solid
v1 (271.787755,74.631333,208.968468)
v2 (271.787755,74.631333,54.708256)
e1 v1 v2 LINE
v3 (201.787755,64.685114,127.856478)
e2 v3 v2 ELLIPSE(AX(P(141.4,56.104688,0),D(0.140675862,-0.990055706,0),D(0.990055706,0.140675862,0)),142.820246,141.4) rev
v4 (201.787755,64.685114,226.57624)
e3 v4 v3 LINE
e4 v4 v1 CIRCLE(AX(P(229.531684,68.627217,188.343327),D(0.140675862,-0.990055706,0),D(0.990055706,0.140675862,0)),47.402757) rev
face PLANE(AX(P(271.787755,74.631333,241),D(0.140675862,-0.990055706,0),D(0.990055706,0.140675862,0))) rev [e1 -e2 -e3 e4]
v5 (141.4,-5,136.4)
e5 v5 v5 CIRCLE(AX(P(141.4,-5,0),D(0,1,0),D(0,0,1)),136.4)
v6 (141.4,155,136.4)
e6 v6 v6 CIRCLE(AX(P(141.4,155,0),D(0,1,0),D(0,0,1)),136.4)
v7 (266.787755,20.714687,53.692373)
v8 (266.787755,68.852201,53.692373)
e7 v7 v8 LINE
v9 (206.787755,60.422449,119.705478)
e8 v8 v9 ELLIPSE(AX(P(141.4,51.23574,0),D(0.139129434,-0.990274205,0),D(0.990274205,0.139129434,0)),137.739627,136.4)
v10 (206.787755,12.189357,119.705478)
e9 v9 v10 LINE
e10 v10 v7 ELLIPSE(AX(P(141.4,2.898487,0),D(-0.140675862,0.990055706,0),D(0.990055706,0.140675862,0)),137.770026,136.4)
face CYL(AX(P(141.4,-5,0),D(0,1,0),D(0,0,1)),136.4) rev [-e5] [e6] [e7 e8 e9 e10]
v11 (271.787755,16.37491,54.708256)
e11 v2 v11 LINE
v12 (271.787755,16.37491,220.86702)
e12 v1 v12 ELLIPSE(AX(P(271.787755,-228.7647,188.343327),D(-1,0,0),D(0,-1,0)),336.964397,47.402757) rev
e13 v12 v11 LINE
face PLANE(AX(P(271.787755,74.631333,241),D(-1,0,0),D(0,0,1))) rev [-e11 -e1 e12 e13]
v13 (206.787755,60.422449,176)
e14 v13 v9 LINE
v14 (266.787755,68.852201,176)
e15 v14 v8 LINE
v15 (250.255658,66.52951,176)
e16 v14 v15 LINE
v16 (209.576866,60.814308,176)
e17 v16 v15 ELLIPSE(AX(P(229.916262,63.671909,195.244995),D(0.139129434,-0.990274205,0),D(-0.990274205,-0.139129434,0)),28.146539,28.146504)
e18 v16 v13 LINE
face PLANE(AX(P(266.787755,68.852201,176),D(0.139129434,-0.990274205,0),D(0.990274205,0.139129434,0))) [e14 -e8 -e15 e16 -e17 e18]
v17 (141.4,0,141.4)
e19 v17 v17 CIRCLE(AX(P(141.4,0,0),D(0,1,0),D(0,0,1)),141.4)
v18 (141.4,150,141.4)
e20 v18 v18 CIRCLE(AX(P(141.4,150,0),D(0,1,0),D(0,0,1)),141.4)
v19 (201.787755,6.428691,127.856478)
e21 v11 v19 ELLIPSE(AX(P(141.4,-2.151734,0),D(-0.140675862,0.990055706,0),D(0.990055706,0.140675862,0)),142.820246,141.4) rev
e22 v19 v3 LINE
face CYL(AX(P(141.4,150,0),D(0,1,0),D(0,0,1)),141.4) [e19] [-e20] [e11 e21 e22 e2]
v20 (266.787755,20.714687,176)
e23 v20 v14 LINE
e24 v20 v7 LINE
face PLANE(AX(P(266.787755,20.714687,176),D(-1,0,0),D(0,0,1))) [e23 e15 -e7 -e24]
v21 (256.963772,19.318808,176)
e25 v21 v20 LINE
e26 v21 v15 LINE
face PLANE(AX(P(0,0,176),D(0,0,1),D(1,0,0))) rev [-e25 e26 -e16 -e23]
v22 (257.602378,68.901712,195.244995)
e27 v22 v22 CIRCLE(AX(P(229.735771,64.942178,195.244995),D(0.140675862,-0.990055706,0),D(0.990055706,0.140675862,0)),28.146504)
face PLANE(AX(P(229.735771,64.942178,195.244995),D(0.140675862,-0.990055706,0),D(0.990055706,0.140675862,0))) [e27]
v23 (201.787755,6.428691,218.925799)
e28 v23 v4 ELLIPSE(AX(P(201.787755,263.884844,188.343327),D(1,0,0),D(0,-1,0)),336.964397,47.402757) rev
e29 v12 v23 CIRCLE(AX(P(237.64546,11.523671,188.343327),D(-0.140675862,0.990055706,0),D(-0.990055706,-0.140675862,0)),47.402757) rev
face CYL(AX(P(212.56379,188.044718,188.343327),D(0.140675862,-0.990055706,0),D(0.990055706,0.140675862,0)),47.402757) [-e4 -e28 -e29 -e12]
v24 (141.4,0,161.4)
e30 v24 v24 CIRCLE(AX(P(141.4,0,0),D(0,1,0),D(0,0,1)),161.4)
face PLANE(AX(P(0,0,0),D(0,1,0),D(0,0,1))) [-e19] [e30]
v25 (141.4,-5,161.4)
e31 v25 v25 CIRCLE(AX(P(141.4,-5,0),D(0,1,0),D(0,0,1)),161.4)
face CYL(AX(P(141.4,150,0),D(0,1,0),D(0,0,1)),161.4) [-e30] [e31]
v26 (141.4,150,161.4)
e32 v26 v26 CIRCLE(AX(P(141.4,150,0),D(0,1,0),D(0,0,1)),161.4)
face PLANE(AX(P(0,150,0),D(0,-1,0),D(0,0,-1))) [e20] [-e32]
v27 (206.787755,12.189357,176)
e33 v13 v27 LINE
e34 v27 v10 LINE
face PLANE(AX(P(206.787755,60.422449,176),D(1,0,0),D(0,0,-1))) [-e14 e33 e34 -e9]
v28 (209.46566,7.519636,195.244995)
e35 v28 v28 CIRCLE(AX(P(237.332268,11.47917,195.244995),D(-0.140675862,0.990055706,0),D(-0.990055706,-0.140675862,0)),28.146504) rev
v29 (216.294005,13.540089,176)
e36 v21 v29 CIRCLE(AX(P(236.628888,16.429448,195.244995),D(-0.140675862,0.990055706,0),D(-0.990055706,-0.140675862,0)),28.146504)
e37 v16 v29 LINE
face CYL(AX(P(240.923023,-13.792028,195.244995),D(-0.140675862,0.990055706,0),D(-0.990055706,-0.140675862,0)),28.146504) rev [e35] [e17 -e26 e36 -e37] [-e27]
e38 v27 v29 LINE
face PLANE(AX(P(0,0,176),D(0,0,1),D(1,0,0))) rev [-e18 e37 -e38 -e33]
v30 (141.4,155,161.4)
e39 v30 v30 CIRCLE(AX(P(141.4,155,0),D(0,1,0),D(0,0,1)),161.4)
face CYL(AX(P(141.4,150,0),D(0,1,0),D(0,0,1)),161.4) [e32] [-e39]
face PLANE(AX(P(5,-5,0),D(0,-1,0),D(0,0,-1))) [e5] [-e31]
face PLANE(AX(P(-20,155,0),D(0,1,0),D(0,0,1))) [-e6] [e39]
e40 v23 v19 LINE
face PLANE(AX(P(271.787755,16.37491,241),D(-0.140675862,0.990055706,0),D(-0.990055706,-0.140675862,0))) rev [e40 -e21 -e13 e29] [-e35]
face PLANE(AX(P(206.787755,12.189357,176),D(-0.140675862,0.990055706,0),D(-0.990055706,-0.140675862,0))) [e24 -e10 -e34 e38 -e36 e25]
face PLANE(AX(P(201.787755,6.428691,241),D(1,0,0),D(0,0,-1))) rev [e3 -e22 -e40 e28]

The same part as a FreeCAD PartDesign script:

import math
import FreeCAD as App
import Part
import Sketcher
from FreeCAD import Vector

doc = App.newDocument("Part")
body = doc.addObject("PartDesign::Body", "Body")

sketch1 = doc.addObject("Sketcher::SketchObject", "Sketch")
body.addObject(sketch1)
sketch1.AttachmentSupport = (doc.XY_Plane, [""])
sketch1.MapMode = "FlatFace"
sketch1.addGeometry([
    Part.LineSegment(Vector(0, 0, 0), Vector(-20, 0, 0)),
    Part.LineSegment(Vector(-20, 0, 0), Vector(-20, -5, 0)),
    Part.LineSegment(Vector(-20, -5, 0), Vector(141, -5, 0)),
    Part.LineSegment(Vector(141, -5, 0), Vector(141, 155, 0)),
    Part.LineSegment(Vector(141, 155, 0), Vector(-20, 155, 0)),
    Part.LineSegment(Vector(-20, 155, 0), Vector(-20, 150, 0)),
    Part.LineSegment(Vector(-20, 150, 0), Vector(0, 150, 0)),
    Part.LineSegment(Vector(0, 150, 0), Vector(0, 0, 0)),
], False)
sketch1.addGeometry(Part.LineSegment(Vector(141, 155, 0), Vector(141, -5, 0)), True)
sketch1.addConstraint([
    Sketcher.Constraint("Coincident", 0, 2, 1, 1),
    Sketcher.Constraint("Coincident", 1, 2, 2, 1),
    Sketcher.Constraint("Coincident", 2, 2, 3, 1),
    Sketcher.Constraint("Coincident", 3, 2, 4, 1),
    Sketcher.Constraint("Coincident", 4, 2, 5, 1),
    Sketcher.Constraint("Coincident", 5, 2, 6, 1),
    Sketcher.Constraint("Coincident", 6, 2, 7, 1),
    Sketcher.Constraint("Coincident", 7, 2, 0, 1),
    Sketcher.Constraint("Horizontal", 0),
    Sketcher.Constraint("Vertical", 1),
    Sketcher.Constraint("Horizontal", 2),
    Sketcher.Constraint("Vertical", 3),
    Sketcher.Constraint("Horizontal", 4),
    Sketcher.Constraint("Vertical", 5),
    Sketcher.Constraint("Horizontal", 6),
    Sketcher.Constraint("Vertical", 7),
    Sketcher.Constraint("Vertical", 8),
    Sketcher.Constraint("Coincident", 7, 2, -1, 1),
    Sketcher.Constraint("Coincident", 8, 1, 3, 2),
    Sketcher.Constraint("Horizontal", 1, 2, 8, 2),
    Sketcher.Constraint("Vertical", 1, 2, 4, 2),
    Sketcher.Constraint("Equal", 1, 5),
    Sketcher.Constraint("DistanceX", 0, 2, 0, 1, 20.0),
    Sketcher.Constraint("DistanceY", 1, 2, 1, 1, 5.0),
    Sketcher.Constraint("DistanceY", 3, 1, 3, 2, 160.0),
    Sketcher.Constraint("DistanceX", 2, 1, 2, 2, 161.4),
])
revolution = doc.addObject("PartDesign::Revolution", "Revolution")
body.addObject(revolution)
revolution.Profile = sketch1
revolution.ReferenceAxis = (sketch1, ["Axis0"])
revolution.Angle = 360

sketch2 = doc.addObject("Sketcher::SketchObject", "Sketch001")
body.addObject(sketch2)
sketch2.AttachmentSupport = (doc.XY_Plane, [""])
sketch2.MapMode = "FlatFace"
sketch2.AttachmentOffset = App.Placement(Vector(0, 0, 140), App.Rotation())
sketch2.addGeometry([
    Part.LineSegment(Vector(272, 75, 0), Vector(202, 65, 0)),
    Part.LineSegment(Vector(202, 65, 0), Vector(202, 6, 0)),
    Part.LineSegment(Vector(202, 6, 0), Vector(272, 16, 0)),
    Part.LineSegment(Vector(272, 16, 0), Vector(272, 75, 0)),
], False)
sketch2.addConstraint([
    Sketcher.Constraint("Coincident", 0, 2, 1, 1),
    Sketcher.Constraint("Coincident", 1, 2, 2, 1),
    Sketcher.Constraint("Coincident", 2, 2, 3, 1),
    Sketcher.Constraint("Coincident", 3, 2, 0, 1),
    Sketcher.Constraint("Vertical", 1),
    Sketcher.Constraint("Vertical", 3),
    Sketcher.Constraint("Parallel", 0, 2),
    Sketcher.Constraint("DistanceX", 1, 2, 2, 2, 70.0),
    Sketcher.Constraint("DistanceY", 1, 2, 1, 1, 58.256423),
    Sketcher.Constraint("DistanceY", -1, 1, 1, 2, 6.428691),
    Sketcher.Constraint("DistanceY", -1, 1, 2, 2, 16.37491),
    Sketcher.Constraint("DistanceX", -1, 1, 0, 2, 201.787755),
])
pad1 = doc.addObject("PartDesign::Pad", "Pad")
body.addObject(pad1)
pad1.Profile = sketch2
pad1.Length = 202
pad1.Midplane = True

sketch3 = doc.addObject("Sketcher::SketchObject", "Sketch002")
body.addObject(sketch3)
sketch3.Placement = App.Placement(Vector(4.504709, -31.703468, 0), App.Rotation(Vector(-0.990055706, -0.140675862, 0), Vector(0, 0, -0.999999999), Vector(0.140675862, -0.990055706, 0), "ZXY"))
sketch3.addGeometry([
    Part.LineSegment(Vector(-283, -199, 0), Vector(-293, -244, 0)),
    Part.LineSegment(Vector(-293, -244, 0), Vector(-247, -274, 0)),
    Part.LineSegment(Vector(-247, -274, 0), Vector(-191, -274, 0)),
    Part.LineSegment(Vector(-191, -274, 0), Vector(-191, -199, 0)),
    Part.ArcOfCircle(Part.Circle(Vector(-237, -188, 0), Vector(0, 0, 1), 47), math.radians(-167), math.radians(-13)),
], False)
sketch3.addConstraint([
    Sketcher.Constraint("Coincident", 0, 2, 1, 1),
    Sketcher.Constraint("Coincident", 1, 2, 2, 1),
    Sketcher.Constraint("Coincident", 2, 2, 3, 1),
    Sketcher.Constraint("Coincident", 3, 2, 4, 2),
    Sketcher.Constraint("Coincident", 4, 1, 0, 1),
    Sketcher.Constraint("Horizontal", 2),
    Sketcher.Constraint("Vertical", 3),
    Sketcher.Constraint("Horizontal", 3, 2, 4, 1),
    Sketcher.Constraint("Radius", 4, 47.402757),
    Sketcher.Constraint("DistanceY", 3, 1, 3, 2, 75.05933),
    Sketcher.Constraint("Distance", 0, 45.552761),
    Sketcher.Constraint("DistanceX", 2, 1, 2, 2, 55.986613),
    Sketcher.Constraint("DistanceY", 0, 2, -1, 1, 243.549272),
    Sketcher.Constraint("DistanceX", 4, 1, -1, 1, 283.096669),
    Sketcher.Constraint("DistanceX", 0, 2, 4, 3, 55.621111),
    Sketcher.Constraint("DistanceX", 0, 2, 1, 2, 45.827821),
])
pocket1 = doc.addObject("PartDesign::Pocket", "Pocket")
body.addObject(pocket1)
pocket1.Profile = sketch3
pocket1.Type = "ThroughAll"
pocket1.Midplane = True

sketch4 = doc.addObject("Sketcher::SketchObject", "Sketch003")
body.addObject(sketch4)
sketch4.Placement = App.Placement(Vector(4.504709, -31.703469, 0), App.Rotation(Vector(-0.990055706, -0.140675862, 0), Vector(0, 0, -0.999999999), Vector(0.140675862, -0.990055706, 0), "ZXY"))
sketch4.addGeometry(Part.Circle(Vector(-237, -195, 0), Vector(0, 0, 1), 28), False)
sketch4.addConstraint([
    Sketcher.Constraint("Diameter", 0, 56.293008),
    Sketcher.Constraint("DistanceX", 0, 3, -1, 1, 236.587008),
    Sketcher.Constraint("DistanceY", 0, 3, -1, 1, 195.244994),
])
pocket2 = doc.addObject("PartDesign::Pocket", "Pocket001")
body.addObject(pocket2)
pocket2.Profile = sketch4
pocket2.Type = "TwoLengths"
pocket2.Length = 424.573467
pocket2.Length2 = 64
pocket2.Reversed = True

sketch5 = doc.addObject("Sketcher::SketchObject", "Sketch004")
body.addObject(sketch5)
sketch5.AttachmentSupport = (doc.XY_Plane, [""])
sketch5.MapMode = "FlatFace"
sketch5.AttachmentOffset = App.Placement(Vector(0, 0, 140), App.Rotation())
sketch5.addGeometry([
    Part.LineSegment(Vector(207, 60, 0), Vector(207, 12, 0)),
    Part.LineSegment(Vector(207, 12, 0), Vector(267, 21, 0)),
    Part.LineSegment(Vector(267, 21, 0), Vector(267, 69, 0)),
    Part.LineSegment(Vector(267, 69, 0), Vector(207, 60, 0)),
], False)
sketch5.addConstraint([
    Sketcher.Constraint("Coincident", 0, 2, 1, 1),
    Sketcher.Constraint("Coincident", 1, 2, 2, 1),
    Sketcher.Constraint("Coincident", 2, 2, 3, 1),
    Sketcher.Constraint("Coincident", 3, 2, 0, 1),
    Sketcher.Constraint("Vertical", 0),
    Sketcher.Constraint("Vertical", 2),
    Sketcher.Constraint("DistanceX", 0, 2, 1, 2, 60.0),
    Sketcher.Constraint("DistanceY", -1, 1, 2, 2, 68.852201),
    Sketcher.Constraint("Distance", 1, 60.602651),
    Sketcher.Constraint("Distance", 3, 60.589279),
    Sketcher.Constraint("DistanceY", 0, 2, 0, 1, 48.233092),
    Sketcher.Constraint("DistanceX", -1, 1, 0, 2, 206.787755),
])
pocket3 = doc.addObject("PartDesign::Pocket", "Pocket002")
body.addObject(pocket3)
pocket3.Profile = sketch5
pocket3.Type = "TwoLengths"
pocket3.Length = 36
pocket3.Length2 = 113
pocket3.Reversed = True

sketch6 = doc.addObject("Sketcher::SketchObject", "Sketch005")
body.addObject(sketch6)
sketch6.AttachmentSupport = (doc.XZ_Plane, [""])
sketch6.MapMode = "FlatFace"
sketch6.addGeometry(Part.Circle(Vector(141, 0, 0), Vector(0, 0, 1), 136), False)
sketch6.addConstraint([
    Sketcher.Constraint("PointOnObject", 0, 3, -1),
    Sketcher.Constraint("Diameter", 0, 272.8),
    Sketcher.Constraint("DistanceX", -1, 1, 0, 3, 141.4),
])
pocket4 = doc.addObject("PartDesign::Pocket", "Pocket003")
body.addObject(pocket4)
pocket4.Profile = sketch6
pocket4.Type = "ThroughAll"
pocket4.Midplane = True

doc.recompute()
